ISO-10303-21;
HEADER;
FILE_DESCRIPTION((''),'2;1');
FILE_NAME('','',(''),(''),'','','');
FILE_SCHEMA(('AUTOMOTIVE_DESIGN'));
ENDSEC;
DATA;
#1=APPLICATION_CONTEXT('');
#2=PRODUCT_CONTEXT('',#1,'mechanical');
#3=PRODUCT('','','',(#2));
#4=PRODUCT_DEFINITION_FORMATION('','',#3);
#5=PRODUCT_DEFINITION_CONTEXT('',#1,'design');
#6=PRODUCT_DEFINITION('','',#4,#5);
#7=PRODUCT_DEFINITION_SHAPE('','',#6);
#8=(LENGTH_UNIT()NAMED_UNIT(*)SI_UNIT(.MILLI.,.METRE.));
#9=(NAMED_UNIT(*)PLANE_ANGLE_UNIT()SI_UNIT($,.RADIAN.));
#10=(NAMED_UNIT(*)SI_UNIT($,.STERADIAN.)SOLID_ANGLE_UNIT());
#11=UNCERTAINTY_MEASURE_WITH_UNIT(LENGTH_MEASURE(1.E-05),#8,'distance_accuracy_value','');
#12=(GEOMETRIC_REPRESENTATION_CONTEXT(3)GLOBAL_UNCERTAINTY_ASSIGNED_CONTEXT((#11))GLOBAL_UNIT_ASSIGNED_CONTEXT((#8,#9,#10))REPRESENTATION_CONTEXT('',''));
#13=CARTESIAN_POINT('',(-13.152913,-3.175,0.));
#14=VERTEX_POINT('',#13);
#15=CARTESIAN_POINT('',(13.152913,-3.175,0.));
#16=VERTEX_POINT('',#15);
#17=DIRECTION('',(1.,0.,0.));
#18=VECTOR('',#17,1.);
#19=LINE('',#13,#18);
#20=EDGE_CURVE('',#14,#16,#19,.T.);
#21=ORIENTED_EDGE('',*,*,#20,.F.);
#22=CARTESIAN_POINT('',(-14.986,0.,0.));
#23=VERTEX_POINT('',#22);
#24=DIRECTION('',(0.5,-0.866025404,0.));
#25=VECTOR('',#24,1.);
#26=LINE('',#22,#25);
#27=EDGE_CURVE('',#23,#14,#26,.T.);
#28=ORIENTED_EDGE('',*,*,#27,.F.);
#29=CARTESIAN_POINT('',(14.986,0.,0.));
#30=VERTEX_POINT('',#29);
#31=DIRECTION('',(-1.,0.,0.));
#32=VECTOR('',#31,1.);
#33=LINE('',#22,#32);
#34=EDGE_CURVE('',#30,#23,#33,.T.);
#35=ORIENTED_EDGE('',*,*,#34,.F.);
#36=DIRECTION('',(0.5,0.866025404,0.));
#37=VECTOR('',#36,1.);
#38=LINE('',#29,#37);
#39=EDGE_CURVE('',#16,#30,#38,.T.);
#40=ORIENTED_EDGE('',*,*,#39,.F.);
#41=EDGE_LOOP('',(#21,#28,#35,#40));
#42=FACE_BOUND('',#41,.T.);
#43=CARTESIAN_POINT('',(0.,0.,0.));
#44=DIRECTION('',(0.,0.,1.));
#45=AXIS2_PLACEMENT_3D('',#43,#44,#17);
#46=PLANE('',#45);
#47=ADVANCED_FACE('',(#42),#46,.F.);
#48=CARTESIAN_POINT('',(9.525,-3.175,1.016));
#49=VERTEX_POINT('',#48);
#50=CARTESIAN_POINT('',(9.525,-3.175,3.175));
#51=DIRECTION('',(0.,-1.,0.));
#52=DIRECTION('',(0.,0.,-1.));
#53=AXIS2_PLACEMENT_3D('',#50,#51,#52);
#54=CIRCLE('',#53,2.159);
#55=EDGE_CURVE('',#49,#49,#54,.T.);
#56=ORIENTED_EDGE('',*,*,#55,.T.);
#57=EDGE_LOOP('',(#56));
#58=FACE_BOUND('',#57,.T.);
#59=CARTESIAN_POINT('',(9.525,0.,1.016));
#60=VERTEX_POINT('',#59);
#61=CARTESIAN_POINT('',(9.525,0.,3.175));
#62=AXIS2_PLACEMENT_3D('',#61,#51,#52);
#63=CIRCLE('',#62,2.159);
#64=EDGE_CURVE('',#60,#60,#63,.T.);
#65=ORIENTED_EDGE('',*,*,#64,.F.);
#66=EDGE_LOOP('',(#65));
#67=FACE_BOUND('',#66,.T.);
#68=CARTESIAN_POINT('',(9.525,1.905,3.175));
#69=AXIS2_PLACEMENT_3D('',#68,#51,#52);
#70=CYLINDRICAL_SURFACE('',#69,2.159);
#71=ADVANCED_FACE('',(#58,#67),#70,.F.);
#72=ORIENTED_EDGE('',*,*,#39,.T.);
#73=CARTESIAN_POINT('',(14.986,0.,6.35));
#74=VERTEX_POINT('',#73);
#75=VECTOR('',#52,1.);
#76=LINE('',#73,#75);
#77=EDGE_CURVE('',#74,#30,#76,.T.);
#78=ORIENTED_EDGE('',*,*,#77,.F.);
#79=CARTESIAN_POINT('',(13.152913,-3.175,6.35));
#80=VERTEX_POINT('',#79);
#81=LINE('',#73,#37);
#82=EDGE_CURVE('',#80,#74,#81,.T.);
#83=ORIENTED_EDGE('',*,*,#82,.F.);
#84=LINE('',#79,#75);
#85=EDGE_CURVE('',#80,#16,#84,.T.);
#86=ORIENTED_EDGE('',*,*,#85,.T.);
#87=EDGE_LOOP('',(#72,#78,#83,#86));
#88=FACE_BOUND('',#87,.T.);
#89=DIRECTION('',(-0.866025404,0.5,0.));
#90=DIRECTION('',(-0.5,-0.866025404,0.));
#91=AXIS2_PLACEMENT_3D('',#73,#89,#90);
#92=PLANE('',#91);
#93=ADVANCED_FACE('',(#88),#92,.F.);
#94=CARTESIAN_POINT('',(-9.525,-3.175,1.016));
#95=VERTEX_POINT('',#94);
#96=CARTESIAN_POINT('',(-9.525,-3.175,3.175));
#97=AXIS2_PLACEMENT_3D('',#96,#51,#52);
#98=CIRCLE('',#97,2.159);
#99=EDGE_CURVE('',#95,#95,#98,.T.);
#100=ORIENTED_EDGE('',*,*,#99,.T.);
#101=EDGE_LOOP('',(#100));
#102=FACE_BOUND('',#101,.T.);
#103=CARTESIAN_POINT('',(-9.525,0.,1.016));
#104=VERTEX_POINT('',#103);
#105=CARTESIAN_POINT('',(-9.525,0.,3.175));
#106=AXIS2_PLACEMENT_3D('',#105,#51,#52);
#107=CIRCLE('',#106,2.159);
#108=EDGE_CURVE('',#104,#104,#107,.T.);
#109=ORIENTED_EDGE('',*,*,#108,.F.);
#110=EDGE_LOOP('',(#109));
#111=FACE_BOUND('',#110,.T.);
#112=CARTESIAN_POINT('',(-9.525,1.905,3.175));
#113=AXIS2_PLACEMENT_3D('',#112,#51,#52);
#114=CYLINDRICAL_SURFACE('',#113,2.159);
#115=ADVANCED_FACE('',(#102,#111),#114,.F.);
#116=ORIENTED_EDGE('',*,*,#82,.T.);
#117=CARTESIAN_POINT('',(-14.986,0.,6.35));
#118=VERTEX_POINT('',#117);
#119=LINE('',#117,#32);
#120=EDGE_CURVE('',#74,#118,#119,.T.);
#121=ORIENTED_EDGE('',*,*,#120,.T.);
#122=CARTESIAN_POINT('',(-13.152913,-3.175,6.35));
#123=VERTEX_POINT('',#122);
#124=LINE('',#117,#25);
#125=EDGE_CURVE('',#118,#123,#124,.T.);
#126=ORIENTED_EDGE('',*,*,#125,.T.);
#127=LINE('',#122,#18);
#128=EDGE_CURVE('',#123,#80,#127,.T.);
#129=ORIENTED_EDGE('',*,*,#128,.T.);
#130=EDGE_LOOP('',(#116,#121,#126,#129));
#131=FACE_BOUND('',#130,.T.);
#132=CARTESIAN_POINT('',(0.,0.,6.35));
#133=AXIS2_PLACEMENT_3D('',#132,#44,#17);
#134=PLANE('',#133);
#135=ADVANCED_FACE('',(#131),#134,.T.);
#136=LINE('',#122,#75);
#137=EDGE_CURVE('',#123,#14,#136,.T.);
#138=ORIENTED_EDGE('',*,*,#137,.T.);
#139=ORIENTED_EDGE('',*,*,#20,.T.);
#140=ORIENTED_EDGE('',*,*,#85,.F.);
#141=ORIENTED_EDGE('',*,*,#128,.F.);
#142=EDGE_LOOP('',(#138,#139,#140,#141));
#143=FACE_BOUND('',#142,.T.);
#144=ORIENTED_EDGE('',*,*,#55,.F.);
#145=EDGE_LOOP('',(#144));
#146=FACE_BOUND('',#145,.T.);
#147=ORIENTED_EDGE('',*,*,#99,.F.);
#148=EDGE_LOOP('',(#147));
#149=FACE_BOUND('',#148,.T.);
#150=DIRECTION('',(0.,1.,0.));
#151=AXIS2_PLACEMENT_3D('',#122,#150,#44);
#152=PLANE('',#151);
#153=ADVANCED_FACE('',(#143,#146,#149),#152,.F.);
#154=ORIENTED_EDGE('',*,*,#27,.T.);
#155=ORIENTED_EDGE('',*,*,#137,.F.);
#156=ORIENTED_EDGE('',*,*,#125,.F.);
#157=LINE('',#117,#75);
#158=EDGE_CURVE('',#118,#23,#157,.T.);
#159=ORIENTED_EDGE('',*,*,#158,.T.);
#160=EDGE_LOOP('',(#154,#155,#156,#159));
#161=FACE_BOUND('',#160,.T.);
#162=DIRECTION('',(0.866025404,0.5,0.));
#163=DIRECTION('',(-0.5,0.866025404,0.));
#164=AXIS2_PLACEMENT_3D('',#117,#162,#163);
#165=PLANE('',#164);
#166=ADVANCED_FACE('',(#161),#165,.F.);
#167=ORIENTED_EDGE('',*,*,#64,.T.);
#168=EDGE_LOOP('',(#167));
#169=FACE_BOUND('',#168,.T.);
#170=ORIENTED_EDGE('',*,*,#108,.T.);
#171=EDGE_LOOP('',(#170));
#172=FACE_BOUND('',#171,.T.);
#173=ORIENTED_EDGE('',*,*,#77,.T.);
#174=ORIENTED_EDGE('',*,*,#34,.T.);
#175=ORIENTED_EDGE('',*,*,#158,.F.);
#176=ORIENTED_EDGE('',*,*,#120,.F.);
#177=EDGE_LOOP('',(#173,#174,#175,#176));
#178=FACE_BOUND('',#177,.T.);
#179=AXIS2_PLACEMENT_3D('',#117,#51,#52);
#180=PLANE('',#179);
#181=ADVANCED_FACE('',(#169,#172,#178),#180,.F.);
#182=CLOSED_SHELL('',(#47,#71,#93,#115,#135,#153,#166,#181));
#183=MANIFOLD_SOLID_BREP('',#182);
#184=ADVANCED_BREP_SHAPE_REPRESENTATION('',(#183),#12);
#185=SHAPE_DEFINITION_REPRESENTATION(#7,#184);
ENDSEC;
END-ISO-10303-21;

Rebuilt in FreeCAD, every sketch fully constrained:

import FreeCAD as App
import Part
import Sketcher
from FreeCAD import Vector
Q = App.Units.Quantity


def add_polygon(sketch, points):
    """Adds a closed chain of lines whose ends are joined by coincident constraints."""
    first, n = sketch.GeometryCount, len(points)
    for a, b in zip(points, points[1:] + points[:1]):
        sketch.addGeometry(Part.LineSegment(App.Vector(*a, 0), App.Vector(*b, 0)), False)
    for i in range(n):
        sketch.addConstraint(Sketcher.Constraint("Coincident", first + i, 2, first + (i + 1) % n, 1))

doc = App.newDocument("Part")
body = doc.addObject("PartDesign::Body", "Body")

# Sketch on XY plane
sketch1 = body.newObject("Sketcher::SketchObject", "Sketch")
sketch1.AttachmentSupport = (doc.getObject("XY_Plane"), [""])
sketch1.MapMode = "FlatFace"
add_polygon(sketch1, [(14.986, 0), (-14.986, 0), (-13.152913, -3.175), (13.152913, -3.175)])  # lines 0-3
sketch1.addConstraint([
    Sketcher.Constraint("Horizontal", 0),
    Sketcher.Constraint("Horizontal", 2),
    Sketcher.Constraint("Symmetric", 0, 2, 3, 2, -1, 1),
    Sketcher.Constraint("Equal", 1, 3),
    Sketcher.Constraint("Angle", 1, Q("-60 deg")),
    Sketcher.Constraint("DistanceX", 0, 2, 0, 1, Q("1.18 in")),
    Sketcher.Constraint("DistanceY", 1, 2, -1, 1, Q("0.125 in")),
])
pad1 = body.newObject("PartDesign::Pad", "Pad")
pad1.Profile = sketch1
pad1.Length = Q("0.25 in")

# Sketch on XZ plane
sketch2 = body.newObject("Sketcher::SketchObject", "Sketch001")
sketch2.AttachmentSupport = (doc.getObject("XZ_Plane"), [""])
sketch2.MapMode = "FlatFace"
sketch2.AttachmentOffset = App.Placement(Vector(0, 0, 0.125 * 25.4), App.Rotation())
sketch2.addGeometry([
    Part.Circle(Vector(-9.525, 3.175, 0), Vector(0, 0, 1), 2.159),
    Part.Circle(Vector(9.525, 3.175, 0), Vector(0, 0, 1), 2.159),
], False)
sketch2.addConstraint([
    Sketcher.Constraint("Equal", 0, 1),
    Sketcher.Constraint("Symmetric", 0, 3, 1, 3, -2),
    Sketcher.Constraint("Diameter", 0, Q("0.17 in")),
    Sketcher.Constraint("DistanceX", 0, 3, 1, 3, Q("0.75 in")),
    Sketcher.Constraint("DistanceY", -1, 1, 0, 3, Q("0.125 in")),
])
pocket1 = body.newObject("PartDesign::Pocket", "Pocket")
pocket1.Profile = sketch2
pocket1.Length = Q("0.2 in")

doc.recompute()
